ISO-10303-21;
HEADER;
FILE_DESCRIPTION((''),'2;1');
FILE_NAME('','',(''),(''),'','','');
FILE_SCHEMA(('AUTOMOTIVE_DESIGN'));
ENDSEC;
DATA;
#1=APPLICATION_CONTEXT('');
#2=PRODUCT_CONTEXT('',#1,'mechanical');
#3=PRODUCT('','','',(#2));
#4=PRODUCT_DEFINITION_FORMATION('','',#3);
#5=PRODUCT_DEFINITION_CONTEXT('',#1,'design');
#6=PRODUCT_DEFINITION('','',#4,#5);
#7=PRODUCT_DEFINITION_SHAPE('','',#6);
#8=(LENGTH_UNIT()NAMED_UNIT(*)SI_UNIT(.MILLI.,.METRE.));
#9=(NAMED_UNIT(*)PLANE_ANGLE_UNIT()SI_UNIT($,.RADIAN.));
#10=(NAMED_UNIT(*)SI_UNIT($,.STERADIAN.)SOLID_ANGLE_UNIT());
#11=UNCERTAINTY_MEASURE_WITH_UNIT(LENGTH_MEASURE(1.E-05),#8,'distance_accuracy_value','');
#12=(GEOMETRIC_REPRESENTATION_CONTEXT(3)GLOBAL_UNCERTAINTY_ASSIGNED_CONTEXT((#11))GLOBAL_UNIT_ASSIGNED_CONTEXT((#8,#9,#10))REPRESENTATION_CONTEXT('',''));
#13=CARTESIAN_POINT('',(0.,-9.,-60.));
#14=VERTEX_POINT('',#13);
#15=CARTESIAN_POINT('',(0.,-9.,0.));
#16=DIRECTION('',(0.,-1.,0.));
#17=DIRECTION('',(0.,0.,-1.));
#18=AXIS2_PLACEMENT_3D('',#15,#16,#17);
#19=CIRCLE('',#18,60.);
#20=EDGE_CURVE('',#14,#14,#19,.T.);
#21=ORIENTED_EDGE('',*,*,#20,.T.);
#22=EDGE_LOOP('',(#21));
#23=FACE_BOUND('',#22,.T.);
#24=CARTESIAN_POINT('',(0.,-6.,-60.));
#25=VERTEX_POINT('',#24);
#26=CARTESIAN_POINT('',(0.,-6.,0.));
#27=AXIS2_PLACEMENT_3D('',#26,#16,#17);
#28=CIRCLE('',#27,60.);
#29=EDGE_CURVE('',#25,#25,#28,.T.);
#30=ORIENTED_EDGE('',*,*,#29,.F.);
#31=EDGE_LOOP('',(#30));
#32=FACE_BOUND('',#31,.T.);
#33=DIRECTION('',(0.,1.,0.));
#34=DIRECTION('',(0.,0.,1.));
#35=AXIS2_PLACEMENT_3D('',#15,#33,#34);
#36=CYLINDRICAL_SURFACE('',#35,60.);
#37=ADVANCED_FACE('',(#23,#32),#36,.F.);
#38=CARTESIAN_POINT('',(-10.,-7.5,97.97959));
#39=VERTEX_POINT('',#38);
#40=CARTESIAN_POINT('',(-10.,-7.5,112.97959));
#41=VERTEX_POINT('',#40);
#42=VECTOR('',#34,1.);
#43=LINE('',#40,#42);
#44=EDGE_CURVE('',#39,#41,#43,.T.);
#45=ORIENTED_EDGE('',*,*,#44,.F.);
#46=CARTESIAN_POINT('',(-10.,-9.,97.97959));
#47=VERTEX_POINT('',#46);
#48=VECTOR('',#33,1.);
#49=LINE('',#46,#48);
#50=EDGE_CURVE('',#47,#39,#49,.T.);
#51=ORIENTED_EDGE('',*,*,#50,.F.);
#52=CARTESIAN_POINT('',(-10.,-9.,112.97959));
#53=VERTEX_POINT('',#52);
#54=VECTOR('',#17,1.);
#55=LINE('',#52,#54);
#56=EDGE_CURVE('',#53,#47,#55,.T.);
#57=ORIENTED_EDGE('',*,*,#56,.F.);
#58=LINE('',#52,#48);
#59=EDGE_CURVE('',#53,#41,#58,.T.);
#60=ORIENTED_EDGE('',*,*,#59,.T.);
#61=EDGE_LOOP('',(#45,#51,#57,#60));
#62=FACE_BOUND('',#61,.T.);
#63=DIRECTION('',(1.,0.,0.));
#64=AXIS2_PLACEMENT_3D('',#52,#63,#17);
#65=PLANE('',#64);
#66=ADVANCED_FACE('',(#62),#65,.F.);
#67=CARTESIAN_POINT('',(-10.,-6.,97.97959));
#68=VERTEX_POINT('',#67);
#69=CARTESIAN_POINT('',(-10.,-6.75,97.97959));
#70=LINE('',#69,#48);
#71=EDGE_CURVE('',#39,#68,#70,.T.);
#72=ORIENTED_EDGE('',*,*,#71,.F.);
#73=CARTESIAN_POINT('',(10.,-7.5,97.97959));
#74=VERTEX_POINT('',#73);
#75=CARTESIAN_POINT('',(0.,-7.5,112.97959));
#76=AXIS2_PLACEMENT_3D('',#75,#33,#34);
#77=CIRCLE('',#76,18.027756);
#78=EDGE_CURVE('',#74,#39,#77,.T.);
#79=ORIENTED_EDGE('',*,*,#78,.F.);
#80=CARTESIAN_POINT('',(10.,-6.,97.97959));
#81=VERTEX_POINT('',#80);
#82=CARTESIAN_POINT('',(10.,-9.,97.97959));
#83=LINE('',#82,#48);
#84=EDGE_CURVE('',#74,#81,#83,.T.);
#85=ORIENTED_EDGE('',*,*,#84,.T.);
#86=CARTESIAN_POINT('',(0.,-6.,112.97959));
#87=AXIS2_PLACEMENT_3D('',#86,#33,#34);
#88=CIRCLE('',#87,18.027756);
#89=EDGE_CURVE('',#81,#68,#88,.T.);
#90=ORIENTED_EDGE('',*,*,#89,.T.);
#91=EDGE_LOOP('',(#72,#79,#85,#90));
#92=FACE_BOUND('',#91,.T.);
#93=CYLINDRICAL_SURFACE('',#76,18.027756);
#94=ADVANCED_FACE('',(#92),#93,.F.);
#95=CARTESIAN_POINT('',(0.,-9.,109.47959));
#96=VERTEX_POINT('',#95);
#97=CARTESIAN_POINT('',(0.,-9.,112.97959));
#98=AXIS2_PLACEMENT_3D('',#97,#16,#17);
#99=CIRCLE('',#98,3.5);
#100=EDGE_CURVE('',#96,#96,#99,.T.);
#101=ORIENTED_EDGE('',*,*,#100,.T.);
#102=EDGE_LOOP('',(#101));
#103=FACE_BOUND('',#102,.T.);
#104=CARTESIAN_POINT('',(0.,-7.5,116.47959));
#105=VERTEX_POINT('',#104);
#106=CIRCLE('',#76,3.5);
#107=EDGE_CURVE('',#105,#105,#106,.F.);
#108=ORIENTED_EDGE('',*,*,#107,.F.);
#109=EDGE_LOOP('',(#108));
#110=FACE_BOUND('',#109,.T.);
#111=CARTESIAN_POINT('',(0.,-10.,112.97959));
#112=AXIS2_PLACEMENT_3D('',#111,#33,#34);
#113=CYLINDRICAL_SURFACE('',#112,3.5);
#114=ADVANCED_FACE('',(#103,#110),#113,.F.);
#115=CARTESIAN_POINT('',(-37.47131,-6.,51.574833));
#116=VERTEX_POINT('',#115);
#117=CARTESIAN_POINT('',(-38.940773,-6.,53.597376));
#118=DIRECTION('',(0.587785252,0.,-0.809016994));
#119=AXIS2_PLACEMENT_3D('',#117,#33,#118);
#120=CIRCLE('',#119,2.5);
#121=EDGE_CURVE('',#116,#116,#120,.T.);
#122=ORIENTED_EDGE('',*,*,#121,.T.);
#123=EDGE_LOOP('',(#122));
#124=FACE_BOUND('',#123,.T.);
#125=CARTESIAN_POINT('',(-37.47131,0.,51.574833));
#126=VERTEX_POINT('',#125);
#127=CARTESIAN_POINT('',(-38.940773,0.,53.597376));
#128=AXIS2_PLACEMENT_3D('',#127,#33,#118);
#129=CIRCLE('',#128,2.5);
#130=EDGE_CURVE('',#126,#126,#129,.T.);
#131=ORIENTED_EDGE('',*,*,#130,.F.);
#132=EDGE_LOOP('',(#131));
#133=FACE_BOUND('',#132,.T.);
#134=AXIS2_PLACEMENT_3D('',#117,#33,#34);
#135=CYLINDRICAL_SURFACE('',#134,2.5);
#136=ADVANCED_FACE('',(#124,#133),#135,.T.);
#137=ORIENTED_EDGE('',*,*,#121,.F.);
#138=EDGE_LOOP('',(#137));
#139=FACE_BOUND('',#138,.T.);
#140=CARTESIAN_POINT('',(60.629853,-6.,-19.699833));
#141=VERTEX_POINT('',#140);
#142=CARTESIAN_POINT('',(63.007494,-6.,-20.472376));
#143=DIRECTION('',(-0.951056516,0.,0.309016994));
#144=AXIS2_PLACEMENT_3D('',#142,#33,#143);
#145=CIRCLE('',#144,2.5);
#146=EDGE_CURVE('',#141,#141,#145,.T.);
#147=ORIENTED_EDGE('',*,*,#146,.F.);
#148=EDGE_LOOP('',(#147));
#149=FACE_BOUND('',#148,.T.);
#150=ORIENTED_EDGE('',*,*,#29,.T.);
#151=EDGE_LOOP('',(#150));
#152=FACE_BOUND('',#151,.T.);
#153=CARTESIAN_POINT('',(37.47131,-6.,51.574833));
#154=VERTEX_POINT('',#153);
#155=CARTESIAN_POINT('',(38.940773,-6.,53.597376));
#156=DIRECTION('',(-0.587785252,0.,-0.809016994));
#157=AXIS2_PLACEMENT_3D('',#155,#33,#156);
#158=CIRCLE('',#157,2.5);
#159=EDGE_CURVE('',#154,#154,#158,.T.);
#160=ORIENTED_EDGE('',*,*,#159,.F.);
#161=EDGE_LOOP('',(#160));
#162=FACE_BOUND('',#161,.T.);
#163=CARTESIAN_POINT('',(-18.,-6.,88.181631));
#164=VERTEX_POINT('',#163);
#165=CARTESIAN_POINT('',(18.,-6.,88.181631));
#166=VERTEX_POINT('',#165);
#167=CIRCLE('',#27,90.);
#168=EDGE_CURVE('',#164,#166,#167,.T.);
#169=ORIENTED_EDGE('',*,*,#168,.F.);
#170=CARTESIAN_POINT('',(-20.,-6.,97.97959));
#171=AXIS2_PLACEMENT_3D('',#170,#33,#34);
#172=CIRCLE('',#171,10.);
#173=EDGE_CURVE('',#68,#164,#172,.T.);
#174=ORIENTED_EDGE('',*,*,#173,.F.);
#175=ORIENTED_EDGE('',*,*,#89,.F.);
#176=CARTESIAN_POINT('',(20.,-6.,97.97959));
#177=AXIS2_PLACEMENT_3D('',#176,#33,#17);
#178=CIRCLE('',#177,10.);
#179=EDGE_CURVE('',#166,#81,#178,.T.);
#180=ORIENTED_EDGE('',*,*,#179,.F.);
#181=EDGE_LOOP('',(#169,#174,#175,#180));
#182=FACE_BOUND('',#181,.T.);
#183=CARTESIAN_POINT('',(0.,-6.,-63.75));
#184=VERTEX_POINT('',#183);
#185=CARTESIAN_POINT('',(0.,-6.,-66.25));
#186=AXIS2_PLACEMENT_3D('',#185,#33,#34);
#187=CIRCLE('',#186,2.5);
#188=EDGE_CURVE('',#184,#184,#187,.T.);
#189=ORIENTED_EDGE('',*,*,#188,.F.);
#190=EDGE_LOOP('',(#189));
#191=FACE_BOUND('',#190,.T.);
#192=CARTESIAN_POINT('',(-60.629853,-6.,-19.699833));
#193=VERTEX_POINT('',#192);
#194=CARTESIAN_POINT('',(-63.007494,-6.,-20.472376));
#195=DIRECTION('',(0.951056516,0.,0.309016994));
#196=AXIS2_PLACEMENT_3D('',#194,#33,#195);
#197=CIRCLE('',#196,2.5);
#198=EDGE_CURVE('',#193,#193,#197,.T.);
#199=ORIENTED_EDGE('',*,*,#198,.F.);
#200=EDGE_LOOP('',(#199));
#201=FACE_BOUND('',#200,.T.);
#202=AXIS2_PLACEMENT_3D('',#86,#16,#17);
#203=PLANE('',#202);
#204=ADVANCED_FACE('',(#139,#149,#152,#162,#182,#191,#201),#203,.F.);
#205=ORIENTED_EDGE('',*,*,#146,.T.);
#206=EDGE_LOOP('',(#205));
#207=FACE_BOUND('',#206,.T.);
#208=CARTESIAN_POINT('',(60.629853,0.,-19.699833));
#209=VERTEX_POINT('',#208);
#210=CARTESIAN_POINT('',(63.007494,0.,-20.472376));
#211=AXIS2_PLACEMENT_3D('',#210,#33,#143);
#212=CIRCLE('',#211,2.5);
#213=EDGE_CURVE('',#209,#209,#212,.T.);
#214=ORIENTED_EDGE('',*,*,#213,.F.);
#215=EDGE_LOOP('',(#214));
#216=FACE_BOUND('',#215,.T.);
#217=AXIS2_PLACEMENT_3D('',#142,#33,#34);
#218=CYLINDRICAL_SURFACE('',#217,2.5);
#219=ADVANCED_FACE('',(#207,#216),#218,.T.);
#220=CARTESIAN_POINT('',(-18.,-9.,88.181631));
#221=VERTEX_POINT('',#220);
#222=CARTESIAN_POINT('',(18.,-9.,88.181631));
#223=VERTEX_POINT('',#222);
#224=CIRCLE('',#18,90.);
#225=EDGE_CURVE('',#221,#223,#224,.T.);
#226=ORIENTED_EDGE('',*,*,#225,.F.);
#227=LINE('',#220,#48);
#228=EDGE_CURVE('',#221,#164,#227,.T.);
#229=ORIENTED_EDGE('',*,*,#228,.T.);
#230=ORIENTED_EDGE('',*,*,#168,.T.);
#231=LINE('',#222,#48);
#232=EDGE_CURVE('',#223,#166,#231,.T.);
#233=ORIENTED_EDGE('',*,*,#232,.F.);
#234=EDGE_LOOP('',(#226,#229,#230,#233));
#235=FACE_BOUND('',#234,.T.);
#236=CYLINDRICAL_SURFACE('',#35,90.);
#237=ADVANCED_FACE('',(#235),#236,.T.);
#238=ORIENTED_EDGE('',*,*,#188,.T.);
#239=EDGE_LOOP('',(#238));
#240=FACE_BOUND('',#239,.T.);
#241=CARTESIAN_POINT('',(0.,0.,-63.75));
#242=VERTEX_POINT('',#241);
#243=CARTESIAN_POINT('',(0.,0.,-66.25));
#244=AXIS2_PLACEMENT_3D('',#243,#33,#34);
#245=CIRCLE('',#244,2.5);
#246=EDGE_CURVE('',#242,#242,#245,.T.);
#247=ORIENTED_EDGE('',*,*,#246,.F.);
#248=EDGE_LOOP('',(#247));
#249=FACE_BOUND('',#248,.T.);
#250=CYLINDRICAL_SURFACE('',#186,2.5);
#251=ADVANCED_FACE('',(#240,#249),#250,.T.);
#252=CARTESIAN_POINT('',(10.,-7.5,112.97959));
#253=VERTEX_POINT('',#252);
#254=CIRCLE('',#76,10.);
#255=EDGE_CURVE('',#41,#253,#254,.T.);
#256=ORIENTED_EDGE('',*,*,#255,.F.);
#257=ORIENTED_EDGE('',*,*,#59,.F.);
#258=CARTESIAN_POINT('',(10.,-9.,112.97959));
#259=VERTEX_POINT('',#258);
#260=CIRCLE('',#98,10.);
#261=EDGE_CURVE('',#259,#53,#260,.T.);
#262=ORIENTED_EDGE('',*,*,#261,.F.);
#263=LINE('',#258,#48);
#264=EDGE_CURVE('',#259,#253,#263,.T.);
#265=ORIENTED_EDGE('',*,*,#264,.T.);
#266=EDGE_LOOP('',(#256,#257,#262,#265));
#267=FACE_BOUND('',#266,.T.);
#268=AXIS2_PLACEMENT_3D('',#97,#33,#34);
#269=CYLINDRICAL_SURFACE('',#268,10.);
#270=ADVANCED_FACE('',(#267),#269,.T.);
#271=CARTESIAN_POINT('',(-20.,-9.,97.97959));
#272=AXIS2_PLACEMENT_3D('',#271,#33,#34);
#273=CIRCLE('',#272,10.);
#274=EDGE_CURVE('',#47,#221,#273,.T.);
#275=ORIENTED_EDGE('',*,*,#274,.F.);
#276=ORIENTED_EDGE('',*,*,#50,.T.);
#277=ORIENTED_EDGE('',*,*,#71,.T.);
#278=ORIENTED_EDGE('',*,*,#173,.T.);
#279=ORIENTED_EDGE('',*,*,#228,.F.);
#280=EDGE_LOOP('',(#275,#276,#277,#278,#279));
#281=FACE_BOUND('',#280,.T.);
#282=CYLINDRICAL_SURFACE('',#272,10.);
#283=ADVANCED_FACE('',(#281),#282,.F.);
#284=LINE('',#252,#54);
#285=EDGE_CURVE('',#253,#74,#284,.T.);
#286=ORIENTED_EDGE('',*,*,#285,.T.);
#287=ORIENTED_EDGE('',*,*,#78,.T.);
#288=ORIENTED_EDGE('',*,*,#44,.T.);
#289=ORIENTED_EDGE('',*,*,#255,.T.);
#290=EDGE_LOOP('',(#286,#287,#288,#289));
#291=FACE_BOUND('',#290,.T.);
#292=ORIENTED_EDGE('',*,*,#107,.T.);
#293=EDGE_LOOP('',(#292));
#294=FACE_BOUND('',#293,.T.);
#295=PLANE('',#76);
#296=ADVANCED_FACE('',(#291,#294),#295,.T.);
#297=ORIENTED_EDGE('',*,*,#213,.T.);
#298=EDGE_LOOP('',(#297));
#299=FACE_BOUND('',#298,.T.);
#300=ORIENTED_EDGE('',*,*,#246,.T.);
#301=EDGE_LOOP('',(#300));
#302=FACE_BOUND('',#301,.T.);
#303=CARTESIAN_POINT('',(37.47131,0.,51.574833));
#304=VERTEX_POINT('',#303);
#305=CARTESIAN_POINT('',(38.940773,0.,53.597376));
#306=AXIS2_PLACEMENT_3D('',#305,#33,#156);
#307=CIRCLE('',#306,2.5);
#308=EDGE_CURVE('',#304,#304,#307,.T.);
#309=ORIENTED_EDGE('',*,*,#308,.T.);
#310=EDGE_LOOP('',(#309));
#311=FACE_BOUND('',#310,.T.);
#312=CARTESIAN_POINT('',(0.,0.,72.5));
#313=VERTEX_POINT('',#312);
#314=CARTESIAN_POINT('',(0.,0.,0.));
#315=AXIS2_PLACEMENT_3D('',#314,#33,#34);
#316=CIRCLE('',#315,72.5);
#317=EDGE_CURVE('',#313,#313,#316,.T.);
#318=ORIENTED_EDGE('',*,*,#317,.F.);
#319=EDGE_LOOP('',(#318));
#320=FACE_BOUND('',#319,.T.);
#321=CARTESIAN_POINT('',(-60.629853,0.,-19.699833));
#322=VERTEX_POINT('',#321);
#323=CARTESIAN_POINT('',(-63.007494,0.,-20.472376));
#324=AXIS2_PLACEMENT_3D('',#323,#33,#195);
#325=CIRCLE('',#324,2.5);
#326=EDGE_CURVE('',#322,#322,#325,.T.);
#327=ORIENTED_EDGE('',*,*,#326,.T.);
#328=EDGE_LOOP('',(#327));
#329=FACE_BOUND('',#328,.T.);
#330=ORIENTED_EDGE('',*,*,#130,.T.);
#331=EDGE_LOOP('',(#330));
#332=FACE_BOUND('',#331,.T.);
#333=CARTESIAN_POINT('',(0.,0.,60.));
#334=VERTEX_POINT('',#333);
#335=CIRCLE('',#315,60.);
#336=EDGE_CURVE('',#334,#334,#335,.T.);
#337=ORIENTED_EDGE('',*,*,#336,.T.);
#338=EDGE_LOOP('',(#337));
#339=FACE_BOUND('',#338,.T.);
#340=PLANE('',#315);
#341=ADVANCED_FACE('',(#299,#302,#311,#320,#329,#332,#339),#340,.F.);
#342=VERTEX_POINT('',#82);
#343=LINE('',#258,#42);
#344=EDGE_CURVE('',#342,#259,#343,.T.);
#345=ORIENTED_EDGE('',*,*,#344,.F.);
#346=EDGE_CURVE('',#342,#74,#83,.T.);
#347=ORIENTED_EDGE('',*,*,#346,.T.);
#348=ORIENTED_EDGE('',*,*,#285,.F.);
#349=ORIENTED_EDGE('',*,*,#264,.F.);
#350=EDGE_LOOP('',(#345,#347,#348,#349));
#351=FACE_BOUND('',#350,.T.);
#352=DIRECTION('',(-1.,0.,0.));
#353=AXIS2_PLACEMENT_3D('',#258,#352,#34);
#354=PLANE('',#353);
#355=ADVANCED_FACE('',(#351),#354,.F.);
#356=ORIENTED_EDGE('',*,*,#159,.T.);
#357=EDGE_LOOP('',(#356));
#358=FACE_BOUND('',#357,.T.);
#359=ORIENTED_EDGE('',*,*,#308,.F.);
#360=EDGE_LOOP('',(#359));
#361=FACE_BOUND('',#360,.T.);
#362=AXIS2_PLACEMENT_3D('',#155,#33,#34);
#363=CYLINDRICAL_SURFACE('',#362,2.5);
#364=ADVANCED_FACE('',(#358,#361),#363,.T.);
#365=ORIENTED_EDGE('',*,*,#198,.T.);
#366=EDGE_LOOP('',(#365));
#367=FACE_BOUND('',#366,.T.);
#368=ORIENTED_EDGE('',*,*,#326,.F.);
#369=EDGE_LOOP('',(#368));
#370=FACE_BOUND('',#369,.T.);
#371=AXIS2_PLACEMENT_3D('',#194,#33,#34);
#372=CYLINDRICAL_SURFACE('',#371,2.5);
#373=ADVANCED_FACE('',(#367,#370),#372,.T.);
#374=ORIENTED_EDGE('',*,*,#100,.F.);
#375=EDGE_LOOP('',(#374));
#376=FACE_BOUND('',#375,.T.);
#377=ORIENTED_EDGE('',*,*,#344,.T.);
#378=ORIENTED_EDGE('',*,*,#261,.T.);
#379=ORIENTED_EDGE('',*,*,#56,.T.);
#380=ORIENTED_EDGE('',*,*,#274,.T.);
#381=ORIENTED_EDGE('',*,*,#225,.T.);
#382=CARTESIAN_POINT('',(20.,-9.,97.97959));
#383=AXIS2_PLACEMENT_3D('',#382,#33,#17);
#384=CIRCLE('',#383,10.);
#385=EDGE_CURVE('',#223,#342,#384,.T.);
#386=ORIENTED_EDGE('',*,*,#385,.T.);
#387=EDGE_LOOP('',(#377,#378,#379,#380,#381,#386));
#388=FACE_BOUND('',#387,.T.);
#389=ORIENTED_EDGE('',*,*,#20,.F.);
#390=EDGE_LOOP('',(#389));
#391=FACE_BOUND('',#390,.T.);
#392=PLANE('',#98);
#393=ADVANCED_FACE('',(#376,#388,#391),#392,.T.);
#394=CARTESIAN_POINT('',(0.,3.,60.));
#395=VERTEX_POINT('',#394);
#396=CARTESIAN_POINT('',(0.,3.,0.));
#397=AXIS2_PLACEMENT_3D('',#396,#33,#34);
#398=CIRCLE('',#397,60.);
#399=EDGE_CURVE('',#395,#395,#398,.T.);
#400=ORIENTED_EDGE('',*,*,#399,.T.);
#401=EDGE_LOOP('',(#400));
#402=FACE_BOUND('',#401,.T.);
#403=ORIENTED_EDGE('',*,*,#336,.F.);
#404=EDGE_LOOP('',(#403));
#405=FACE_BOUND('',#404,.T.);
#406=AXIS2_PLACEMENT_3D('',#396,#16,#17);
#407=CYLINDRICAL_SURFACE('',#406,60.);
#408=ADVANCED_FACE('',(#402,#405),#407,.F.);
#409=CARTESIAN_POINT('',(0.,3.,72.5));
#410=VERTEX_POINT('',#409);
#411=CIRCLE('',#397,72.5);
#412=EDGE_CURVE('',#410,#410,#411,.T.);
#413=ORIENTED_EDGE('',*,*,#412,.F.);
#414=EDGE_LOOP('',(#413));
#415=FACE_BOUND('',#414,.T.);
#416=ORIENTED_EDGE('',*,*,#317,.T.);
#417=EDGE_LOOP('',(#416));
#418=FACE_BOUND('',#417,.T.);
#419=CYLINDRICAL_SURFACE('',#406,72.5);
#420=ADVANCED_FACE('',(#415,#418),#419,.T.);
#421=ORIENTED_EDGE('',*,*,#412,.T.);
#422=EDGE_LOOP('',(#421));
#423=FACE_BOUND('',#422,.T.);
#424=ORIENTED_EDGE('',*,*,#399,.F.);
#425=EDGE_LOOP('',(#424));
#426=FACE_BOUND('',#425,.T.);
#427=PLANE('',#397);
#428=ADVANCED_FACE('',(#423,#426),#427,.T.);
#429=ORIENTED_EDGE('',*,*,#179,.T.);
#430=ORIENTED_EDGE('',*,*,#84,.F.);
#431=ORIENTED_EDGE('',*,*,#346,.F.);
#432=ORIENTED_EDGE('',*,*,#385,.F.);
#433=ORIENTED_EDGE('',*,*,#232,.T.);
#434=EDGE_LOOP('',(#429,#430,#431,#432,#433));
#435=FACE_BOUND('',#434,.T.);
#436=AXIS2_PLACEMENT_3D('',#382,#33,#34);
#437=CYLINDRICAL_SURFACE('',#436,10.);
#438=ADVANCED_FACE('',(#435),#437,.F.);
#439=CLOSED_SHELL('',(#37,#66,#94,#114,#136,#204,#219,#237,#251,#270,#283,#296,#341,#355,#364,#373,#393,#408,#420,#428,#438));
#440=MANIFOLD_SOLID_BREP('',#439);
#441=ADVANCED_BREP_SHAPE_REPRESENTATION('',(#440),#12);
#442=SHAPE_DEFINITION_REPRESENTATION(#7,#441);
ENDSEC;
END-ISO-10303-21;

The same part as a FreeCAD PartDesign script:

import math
import FreeCAD as App
import Part
import Sketcher

V = App.Vector

doc = App.newDocument("Part")
params = doc.addObject("Spreadsheet::Sheet", "Params")
for row, (alias, value) in enumerate([
    ("sketch1_diameter", "145 mm"),
    ("sketch1_diameter2", "120 mm"),
    ("pad1_length", "3 mm"),
    ("sketch2_diameter", "5 mm"),
    ("pad2_length", "6 mm"),
    ("sketch3_diameter", "120 mm"),
    ("sketch3_radius", "10 mm"),
    ("sketch3_radius2", "90 mm"),
    ("sketch3_height", "15 mm"),
    ("pad3_length", "3 mm"),
    ("sketch4_diameter", "7 mm"),
    ("pocket1_length", "10 mm"),
    ("pocket2_length", "1.5 mm"),
], start=1):
    params.set(f"A{row}", alias)
    params.set(f"B{row}", "=" + value)
    params.setAlias(f"B{row}", alias)

body = doc.addObject("PartDesign::Body", "Body")

# Sketch on XZ plane
sketch1 = doc.addObject("Sketcher::SketchObject", "Sketch")
body.addObject(sketch1)
sketch1.AttachmentSupport = (doc.XZ_Plane, [""])
sketch1.MapMode = "FlatFace"
sketch1.addGeometry(Part.Circle(V(0, 0, 0), V(0, 0, 1), 72), False)
sketch1.addGeometry(Part.Circle(V(0, 0, 0), V(0, 0, 1), 60), False)
sketch1.addConstraint(Sketcher.Constraint("Coincident", 0, 3, -1, 1))
sketch1.addConstraint(Sketcher.Constraint("Coincident", 1, 3, -1, 1))
sketch1.addConstraint(Sketcher.Constraint("Diameter", 0, 145.0))
sketch1.addConstraint(Sketcher.Constraint("Diameter", 1, 120.0))
sketch1.setExpression("Constraints[2]", "Params.sketch1_diameter")
sketch1.setExpression("Constraints[3]", "Params.sketch1_diameter2")
pad1 = doc.addObject("PartDesign::Pad", "Pad")
body.addObject(pad1)
pad1.Profile = sketch1
pad1.setExpression("Length", "Params.pad1_length")
pad1.Reversed = True

# Sketch on XZ plane
sketch2 = doc.addObject("Sketcher::SketchObject", "Sketch001")
body.addObject(sketch2)
sketch2.AttachmentSupport = (doc.XZ_Plane, [""])
sketch2.MapMode = "FlatFace"
sketch2.addGeometry(Part.Circle(V(0, -66.2, 0), V(0, 0, 1), 2.5), False)
sketch2.addConstraint(Sketcher.Constraint("PointOnObject", 0, 3, -2))
sketch2.addConstraint(Sketcher.Constraint("Diameter", 0, 5.0))
sketch2.addConstraint(Sketcher.Constraint("DistanceY", 0, 3, -1, 1, 66.25))
sketch2.setExpression("Constraints[1]", "Params.sketch2_diameter")
pad2 = doc.addObject("PartDesign::Pad", "Pad001")
body.addObject(pad2)
pad2.Profile = sketch2
pad2.setExpression("Length", "Params.pad2_length")
doc.recompute()

polarpattern = doc.addObject("PartDesign::PolarPattern", "PolarPattern")
body.addObject(polarpattern)
polarpattern.Originals = [pad2]
polarpattern.Axis = (doc.Y_Axis, [""])
polarpattern.Angle = 360
polarpattern.Occurrences = 5
body.Tip = polarpattern

# Sketch on XZ plane
sketch3 = doc.addObject("Sketcher::SketchObject", "Sketch002")
body.addObject(sketch3)
sketch3.AttachmentSupport = (doc.XZ_Plane, [""])
sketch3.MapMode = "FlatFace"
sketch3.AttachmentOffset = App.Placement(V(0, 0, 9), App.Rotation())
sketch3.addGeometry(Part.LineSegment(V(10, 98, 0), V(10, 113, 0)), False)
sketch3.addGeometry(Part.ArcOfCircle(Part.Circle(V(0, 113, 0), V(0, 0, 1), 10), math.radians(0), math.radians(180)), False)
sketch3.addGeometry(Part.LineSegment(V(-10, 113, 0), V(-10, 98, 0)), False)
sketch3.addGeometry(Part.ArcOfCircle(Part.Circle(V(-20, 98, 0), V(0, 0, 1), 10), math.radians(-78), math.radians(0)), False)
sketch3.addGeometry(Part.ArcOfCircle(Part.Circle(V(0, 0, 0), V(0, 0, 1), 90), math.radians(102), math.radians(438)), False)
sketch3.addGeometry(Part.ArcOfCircle(Part.Circle(V(20, 98, 0), V(0, 0, 1), 10), math.radians(-180), math.radians(-102)), False)
sketch3.addGeometry(Part.Circle(V(0, 0, 0), V(0, 0, 1), 60), False)
sketch3.addConstraint(Sketcher.Constraint("Tangent", 0, 2, 1, 1))
sketch3.addConstraint(Sketcher.Constraint("Tangent", 1, 2, 2, 1))
sketch3.addConstraint(Sketcher.Constraint("Tangent", 2, 2, 3, 2))
sketch3.addConstraint(Sketcher.Constraint("Tangent", 3, 1, 4, 1))
sketch3.addConstraint(Sketcher.Constraint("Tangent", 4, 2, 5, 2))
sketch3.addConstraint(Sketcher.Constraint("Tangent", 5, 1, 0, 1))
sketch3.addConstraint(Sketcher.Constraint("Vertical", 0))
sketch3.addConstraint(Sketcher.Constraint("Vertical", 2))
sketch3.addConstraint(Sketcher.Constraint("Coincident", 4, 3, -1, 1))
sketch3.addConstraint(Sketcher.Constraint("Coincident", 6, 3, -1, 1))
sketch3.addConstraint(Sketcher.Constraint("Equal", 1, 3))
sketch3.addConstraint(Sketcher.Constraint("Equal", 3, 5))
sketch3.addConstraint(Sketcher.Constraint("PointOnObject", 1, 3, -2))
sketch3.addConstraint(Sketcher.Constraint("Diameter", 6, 120.0))
sketch3.addConstraint(Sketcher.Constraint("Radius", 1, 10.0))
sketch3.addConstraint(Sketcher.Constraint("Radius", 4, 90.0))
sketch3.addConstraint(Sketcher.Constraint("DistanceY", 0, 1, 0, 2, 15.0))
sketch3.setExpression("Constraints[13]", "Params.sketch3_diameter")
sketch3.setExpression("Constraints[14]", "Params.sketch3_radius")
sketch3.setExpression("Constraints[15]", "Params.sketch3_radius2")
sketch3.setExpression("Constraints[16]", "Params.sketch3_height")
pad3 = doc.addObject("PartDesign::Pad", "Pad002")
body.addObject(pad3)
pad3.Profile = sketch3
pad3.setExpression("Length", "Params.pad3_length")
pad3.Reversed = True

# Sketch on XZ plane
sketch4 = doc.addObject("Sketcher::SketchObject", "Sketch003")
body.addObject(sketch4)
sketch4.AttachmentSupport = (doc.XZ_Plane, [""])
sketch4.MapMode = "FlatFace"
sketch4.addGeometry(Part.Circle(V(0, 113, 0), V(0, 0, 1), 3.5), False)
sketch4.addConstraint(Sketcher.Constraint("PointOnObject", 0, 3, -2))
sketch4.addConstraint(Sketcher.Constraint("Diameter", 0, 7.0))
sketch4.addConstraint(Sketcher.Constraint("DistanceY", -1, 1, 0, 3, 112.97959))
sketch4.setExpression("Constraints[1]", "Params.sketch4_diameter")
pocket1 = doc.addObject("PartDesign::Pocket", "Pocket")
body.addObject(pocket1)
pocket1.Profile = sketch4
pocket1.setExpression("Length", "Params.pocket1_length")
pocket1.Reversed = True

# Sketch on XZ plane
sketch5 = doc.addObject("Sketcher::SketchObject", "Sketch004")
body.addObject(sketch5)
sketch5.AttachmentSupport = (doc.XZ_Plane, [""])
sketch5.MapMode = "FlatFace"
sketch5.AttachmentOffset = App.Placement(V(0, 0, 6), App.Rotation())
sketch5.addGeometry(Part.Circle(V(0, 113, 0), V(0, 0, 1), 18), False)
sketch5.addConstraint(Sketcher.Constraint("PointOnObject", 0, 3, -2))
sketch5.addConstraint(Sketcher.Constraint("Diameter", 0, 36.055513))
sketch5.addConstraint(Sketcher.Constraint("DistanceY", -1, 1, 0, 3, 112.97959))
pocket2 = doc.addObject("PartDesign::Pocket", "Pocket001")
body.addObject(pocket2)
pocket2.Profile = sketch5
pocket2.setExpression("Length", "Params.pocket2_length")
pocket2.Reversed = True

doc.recompute()
